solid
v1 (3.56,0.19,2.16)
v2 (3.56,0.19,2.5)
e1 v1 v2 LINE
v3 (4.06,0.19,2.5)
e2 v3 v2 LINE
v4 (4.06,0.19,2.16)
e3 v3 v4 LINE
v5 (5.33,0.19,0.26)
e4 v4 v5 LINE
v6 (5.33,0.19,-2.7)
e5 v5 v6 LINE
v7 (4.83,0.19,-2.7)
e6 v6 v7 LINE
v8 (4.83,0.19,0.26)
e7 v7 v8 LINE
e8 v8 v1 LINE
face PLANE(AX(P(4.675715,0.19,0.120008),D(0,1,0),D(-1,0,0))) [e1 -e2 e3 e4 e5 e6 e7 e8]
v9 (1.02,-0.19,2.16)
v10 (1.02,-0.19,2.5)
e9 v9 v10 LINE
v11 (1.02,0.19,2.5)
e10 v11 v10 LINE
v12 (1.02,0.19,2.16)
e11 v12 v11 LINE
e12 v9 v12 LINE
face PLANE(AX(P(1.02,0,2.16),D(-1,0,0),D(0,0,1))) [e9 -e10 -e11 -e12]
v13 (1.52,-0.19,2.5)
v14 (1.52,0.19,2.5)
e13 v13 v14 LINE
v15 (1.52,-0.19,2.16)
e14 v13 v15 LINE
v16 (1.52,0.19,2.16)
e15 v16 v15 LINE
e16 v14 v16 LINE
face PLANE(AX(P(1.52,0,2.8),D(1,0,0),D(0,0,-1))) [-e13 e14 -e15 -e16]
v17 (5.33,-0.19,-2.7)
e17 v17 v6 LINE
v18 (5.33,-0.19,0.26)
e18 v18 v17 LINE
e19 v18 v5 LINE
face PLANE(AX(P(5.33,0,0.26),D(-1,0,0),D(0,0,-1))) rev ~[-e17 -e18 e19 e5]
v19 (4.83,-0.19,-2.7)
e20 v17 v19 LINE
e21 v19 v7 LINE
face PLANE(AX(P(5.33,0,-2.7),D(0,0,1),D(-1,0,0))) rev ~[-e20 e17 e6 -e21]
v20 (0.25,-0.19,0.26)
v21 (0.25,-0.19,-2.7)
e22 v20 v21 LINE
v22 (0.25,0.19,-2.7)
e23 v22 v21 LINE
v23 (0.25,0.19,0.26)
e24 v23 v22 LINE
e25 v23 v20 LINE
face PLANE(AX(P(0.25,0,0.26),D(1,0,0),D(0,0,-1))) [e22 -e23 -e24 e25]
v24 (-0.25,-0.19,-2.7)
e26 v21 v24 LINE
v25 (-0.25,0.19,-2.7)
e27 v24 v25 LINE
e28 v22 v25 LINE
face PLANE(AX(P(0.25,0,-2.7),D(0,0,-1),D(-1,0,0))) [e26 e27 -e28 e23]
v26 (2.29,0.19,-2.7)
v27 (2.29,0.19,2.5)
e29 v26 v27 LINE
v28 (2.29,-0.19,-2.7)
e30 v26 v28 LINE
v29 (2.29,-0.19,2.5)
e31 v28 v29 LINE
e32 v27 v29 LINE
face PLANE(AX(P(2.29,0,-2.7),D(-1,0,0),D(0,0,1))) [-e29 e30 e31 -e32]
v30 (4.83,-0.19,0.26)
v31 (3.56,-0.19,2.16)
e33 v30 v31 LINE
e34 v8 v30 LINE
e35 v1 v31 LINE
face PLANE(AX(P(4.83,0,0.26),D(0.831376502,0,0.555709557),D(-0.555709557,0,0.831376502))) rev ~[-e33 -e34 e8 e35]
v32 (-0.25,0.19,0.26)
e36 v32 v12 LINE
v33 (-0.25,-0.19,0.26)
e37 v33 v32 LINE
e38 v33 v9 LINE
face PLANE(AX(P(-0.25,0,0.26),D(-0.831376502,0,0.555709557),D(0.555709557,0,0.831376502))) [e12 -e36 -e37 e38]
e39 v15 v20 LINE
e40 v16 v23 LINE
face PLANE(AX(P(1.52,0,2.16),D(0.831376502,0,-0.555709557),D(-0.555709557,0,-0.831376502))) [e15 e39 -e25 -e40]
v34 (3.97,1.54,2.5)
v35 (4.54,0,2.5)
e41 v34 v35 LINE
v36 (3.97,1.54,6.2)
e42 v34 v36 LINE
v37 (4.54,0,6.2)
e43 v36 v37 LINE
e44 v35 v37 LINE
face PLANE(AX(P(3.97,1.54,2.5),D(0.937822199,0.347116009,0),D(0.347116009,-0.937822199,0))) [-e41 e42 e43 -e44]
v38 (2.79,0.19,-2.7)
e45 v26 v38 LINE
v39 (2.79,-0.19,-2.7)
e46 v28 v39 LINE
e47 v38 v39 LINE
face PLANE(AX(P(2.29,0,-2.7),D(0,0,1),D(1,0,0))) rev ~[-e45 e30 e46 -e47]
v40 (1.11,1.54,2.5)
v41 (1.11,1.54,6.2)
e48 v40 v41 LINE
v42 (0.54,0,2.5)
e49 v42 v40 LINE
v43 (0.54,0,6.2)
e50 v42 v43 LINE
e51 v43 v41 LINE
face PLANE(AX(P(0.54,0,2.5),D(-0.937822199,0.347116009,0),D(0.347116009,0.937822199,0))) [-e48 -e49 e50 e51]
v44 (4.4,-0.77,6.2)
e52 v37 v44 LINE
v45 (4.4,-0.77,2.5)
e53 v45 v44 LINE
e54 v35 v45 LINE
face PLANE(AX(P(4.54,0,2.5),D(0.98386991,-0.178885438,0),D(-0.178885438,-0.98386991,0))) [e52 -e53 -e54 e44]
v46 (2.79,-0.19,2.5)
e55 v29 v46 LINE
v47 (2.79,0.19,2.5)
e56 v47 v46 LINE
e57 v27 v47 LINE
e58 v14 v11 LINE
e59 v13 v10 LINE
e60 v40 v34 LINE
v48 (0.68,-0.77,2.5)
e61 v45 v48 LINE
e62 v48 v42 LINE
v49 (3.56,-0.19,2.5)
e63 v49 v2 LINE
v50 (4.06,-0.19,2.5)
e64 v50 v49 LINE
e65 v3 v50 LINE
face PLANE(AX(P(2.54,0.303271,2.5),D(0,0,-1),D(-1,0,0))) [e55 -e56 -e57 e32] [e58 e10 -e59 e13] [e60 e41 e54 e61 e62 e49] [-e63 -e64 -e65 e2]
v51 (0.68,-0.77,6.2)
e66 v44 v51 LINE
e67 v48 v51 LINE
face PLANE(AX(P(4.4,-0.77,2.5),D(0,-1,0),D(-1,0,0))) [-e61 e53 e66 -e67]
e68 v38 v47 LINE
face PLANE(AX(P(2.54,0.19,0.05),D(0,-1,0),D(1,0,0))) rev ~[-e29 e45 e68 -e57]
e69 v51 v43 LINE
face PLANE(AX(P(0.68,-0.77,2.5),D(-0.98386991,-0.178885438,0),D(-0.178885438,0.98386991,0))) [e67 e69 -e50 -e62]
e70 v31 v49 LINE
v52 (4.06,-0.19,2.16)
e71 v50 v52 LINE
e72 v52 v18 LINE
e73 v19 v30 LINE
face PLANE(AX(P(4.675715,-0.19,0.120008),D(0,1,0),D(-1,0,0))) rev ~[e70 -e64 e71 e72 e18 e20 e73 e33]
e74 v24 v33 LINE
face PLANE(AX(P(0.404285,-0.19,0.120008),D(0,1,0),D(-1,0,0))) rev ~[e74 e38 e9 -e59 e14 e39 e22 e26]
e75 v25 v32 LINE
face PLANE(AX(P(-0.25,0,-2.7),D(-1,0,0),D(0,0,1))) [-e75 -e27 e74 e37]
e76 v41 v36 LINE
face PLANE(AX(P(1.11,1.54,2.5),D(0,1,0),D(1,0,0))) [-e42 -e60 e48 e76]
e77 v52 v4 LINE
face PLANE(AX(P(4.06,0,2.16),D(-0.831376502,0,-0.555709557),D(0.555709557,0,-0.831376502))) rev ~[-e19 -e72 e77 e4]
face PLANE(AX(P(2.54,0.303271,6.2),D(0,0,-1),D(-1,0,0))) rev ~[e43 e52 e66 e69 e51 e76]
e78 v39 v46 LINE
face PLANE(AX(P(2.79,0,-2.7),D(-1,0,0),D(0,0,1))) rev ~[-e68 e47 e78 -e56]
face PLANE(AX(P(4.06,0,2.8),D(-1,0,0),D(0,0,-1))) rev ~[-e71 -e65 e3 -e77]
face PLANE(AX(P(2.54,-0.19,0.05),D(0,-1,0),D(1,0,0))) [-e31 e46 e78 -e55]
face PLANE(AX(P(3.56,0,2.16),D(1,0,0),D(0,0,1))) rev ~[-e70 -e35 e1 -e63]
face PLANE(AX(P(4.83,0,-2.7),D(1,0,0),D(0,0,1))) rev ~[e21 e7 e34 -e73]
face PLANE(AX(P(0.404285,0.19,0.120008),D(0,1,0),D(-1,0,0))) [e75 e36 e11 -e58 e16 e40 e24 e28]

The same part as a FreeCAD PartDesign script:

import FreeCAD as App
import Part
import Sketcher
from FreeCAD import Vector
Q = App.Units.Quantity


def add_polygon(sketch, points):
    """Adds a closed chain of lines whose ends are joined by coincident constraints."""
    first, n = sketch.GeometryCount, len(points)
    for a, b in zip(points, points[1:] + points[:1]):
        sketch.addGeometry(Part.LineSegment(App.Vector(*a, 0), App.Vector(*b, 0)), False)
    for i in range(n):
        sketch.addConstraint(Sketcher.Constraint("Coincident", first + i, 2, first + (i + 1) % n, 1))

doc = App.newDocument("Part")
body = doc.addObject("PartDesign::Body", "Body")

# Sketch on XY plane
sketch1 = body.newObject("Sketcher::SketchObject", "Sketch")
sketch1.AttachmentSupport = (doc.getObject("XY_Plane"), [""])
sketch1.MapMode = "FlatFace"
sketch1.AttachmentOffset = App.Placement(Vector(0, 0, 2.5), App.Rotation())
add_polygon(sketch1, [(4, 1.5), (1.1, 1.5), (0.5, 0), (0.7, -0.8), (4.4, -0.8), (4.5, 0)])  # lines 0-5
sketch1.addConstraint([
    Sketcher.Constraint("Horizontal", 0),
    Sketcher.Constraint("Horizontal", 3),
    Sketcher.Constraint("PointOnObject", 1, 2, -1),
    Sketcher.Constraint("PointOnObject", 4, 2, -1),
    Sketcher.Constraint("Equal", 2, 4),
    Sketcher.Constraint("Equal", 1, 5),
    Sketcher.Constraint("DistanceX", 1, 2, 4, 2, Q("4 mm")),
    Sketcher.Constraint("DistanceX", 0, 2, 0, 1, Q("2.86 mm")),
    Sketcher.Constraint("DistanceX", 3, 1, 3, 2, Q("3.72 mm")),
    Sketcher.Constraint("DistanceX", -1, 1, 3, 2, Q("4.4 mm")),
    Sketcher.Constraint("DistanceY", -1, 1, 0, 2, Q("1.54 mm")),
    Sketcher.Constraint("DistanceY", 2, 2, -1, 1, Q("0.77 mm")),
])
pad1 = body.newObject("PartDesign::Pad", "Pad")
pad1.Profile = sketch1
pad1.Length = 3.7
body2 = doc.addObject("PartDesign::Body", "Body001")
body2.AllowCompound = True

# Sketch on XZ plane
sketch2 = body2.newObject("Sketcher::SketchObject", "Sketch001")
sketch2.AttachmentSupport = (doc.getObject("XZ_Plane001"), [""])
sketch2.MapMode = "FlatFace"
add_polygon(sketch2, [(2.29, 2.8), (2.29, -2.7), (2.79, -2.7), (2.79, 2.8)])  # lines 0-3
add_polygon(sketch2, [(-0.25, -2.7), (0.25, -2.7), (0.25, 0.26), (1.52, 2.16), (1.52, 2.8), (1.02, 2.8), (1.02, 2.16), (-0.25, 0.26)])  # lines 4-11
add_polygon(sketch2, [(4.06, 2.8), (3.56, 2.8), (3.56, 2.16), (4.83, 0.26), (4.83, -2.7), (5.33, -2.7), (5.33, 0.26), (4.06, 2.16)])  # lines 12-19
sketch2.addConstraint([
    Sketcher.Constraint("Vertical", 0),
    Sketcher.Constraint("Horizontal", 1),
    Sketcher.Constraint("Vertical", 2),
    Sketcher.Constraint("Horizontal", 3),
    Sketcher.Constraint("Horizontal", 4),
    Sketcher.Constraint("Vertical", 5),
    Sketcher.Constraint("Vertical", 7),
    Sketcher.Constraint("Horizontal", 8),
    Sketcher.Constraint("Vertical", 9),
    Sketcher.Constraint("Vertical", 11),
    Sketcher.Constraint("Horizontal", 12),
    Sketcher.Constraint("Vertical", 13),
    Sketcher.Constraint("Vertical", 15),
    Sketcher.Constraint("Horizontal", 16),
    Sketcher.Constraint("Vertical", 17),
    Sketcher.Constraint("Vertical", 19),
    Sketcher.Constraint("Symmetric", 5, 2, 10, 2, -2),
    Sketcher.Constraint("Parallel", 6, 10),
    Sketcher.Constraint("Parallel", 14, 18),
    Sketcher.Constraint("Horizontal", 1, 2, 4, 2),
    Sketcher.Constraint("Horizontal", 3, 2, 7, 2),
    Sketcher.Constraint("Horizontal", 6, 2, 9, 2),
    Sketcher.Constraint("Horizontal", 8, 2, 12, 2),
    Sketcher.Constraint("Horizontal", 9, 2, 13, 2),
    Sketcher.Constraint("Horizontal", 10, 2, 14, 2),
    Sketcher.Constraint("Horizontal", 11, 2, 15, 2),
    Sketcher.Constraint("Horizontal", 14, 2, 17, 2),
    Sketcher.Constraint("Horizontal", 13, 2, 18, 2),
    Sketcher.Constraint("Equal", 3, 4),
    Sketcher.Constraint("Equal", 8, 12),
    Sketcher.Constraint("Equal", 10, 14),
    Sketcher.Constraint("DistanceX", 1, 1, 1, 2, Q("0.5 mm")),
    Sketcher.Constraint("DistanceY", 0, 2, 0, 1, Q("5.5 mm")),
    Sketcher.Constraint("DistanceY", 5, 1, 5, 2, Q("2.96 mm")),
    Sketcher.Constraint("DistanceY", 7, 1, 7, 2, Q("0.64 mm")),
    Sketcher.Constraint("DistanceY", 0, 2, -1, 1, Q("2.7 mm")),
    Sketcher.Constraint("DistanceX", -1, 1, 0, 2, Q("2.29 mm")),
    Sketcher.Constraint("DistanceX", -1, 1, 6, 2, Q("1.52 mm")),
    Sketcher.Constraint("DistanceX", -1, 1, 12, 2, Q("3.56 mm")),
])
pad2 = body2.newObject("PartDesign::Pad", "Pad001")
pad2.Profile = sketch2
pad2.Length = 0.38
pad2.Midplane = True
doc.recompute()

boolean = body2.newObject("PartDesign::Boolean", "Boolean")
boolean.Type = "Fuse"
boolean.addObjects([body])

doc.recompute()
